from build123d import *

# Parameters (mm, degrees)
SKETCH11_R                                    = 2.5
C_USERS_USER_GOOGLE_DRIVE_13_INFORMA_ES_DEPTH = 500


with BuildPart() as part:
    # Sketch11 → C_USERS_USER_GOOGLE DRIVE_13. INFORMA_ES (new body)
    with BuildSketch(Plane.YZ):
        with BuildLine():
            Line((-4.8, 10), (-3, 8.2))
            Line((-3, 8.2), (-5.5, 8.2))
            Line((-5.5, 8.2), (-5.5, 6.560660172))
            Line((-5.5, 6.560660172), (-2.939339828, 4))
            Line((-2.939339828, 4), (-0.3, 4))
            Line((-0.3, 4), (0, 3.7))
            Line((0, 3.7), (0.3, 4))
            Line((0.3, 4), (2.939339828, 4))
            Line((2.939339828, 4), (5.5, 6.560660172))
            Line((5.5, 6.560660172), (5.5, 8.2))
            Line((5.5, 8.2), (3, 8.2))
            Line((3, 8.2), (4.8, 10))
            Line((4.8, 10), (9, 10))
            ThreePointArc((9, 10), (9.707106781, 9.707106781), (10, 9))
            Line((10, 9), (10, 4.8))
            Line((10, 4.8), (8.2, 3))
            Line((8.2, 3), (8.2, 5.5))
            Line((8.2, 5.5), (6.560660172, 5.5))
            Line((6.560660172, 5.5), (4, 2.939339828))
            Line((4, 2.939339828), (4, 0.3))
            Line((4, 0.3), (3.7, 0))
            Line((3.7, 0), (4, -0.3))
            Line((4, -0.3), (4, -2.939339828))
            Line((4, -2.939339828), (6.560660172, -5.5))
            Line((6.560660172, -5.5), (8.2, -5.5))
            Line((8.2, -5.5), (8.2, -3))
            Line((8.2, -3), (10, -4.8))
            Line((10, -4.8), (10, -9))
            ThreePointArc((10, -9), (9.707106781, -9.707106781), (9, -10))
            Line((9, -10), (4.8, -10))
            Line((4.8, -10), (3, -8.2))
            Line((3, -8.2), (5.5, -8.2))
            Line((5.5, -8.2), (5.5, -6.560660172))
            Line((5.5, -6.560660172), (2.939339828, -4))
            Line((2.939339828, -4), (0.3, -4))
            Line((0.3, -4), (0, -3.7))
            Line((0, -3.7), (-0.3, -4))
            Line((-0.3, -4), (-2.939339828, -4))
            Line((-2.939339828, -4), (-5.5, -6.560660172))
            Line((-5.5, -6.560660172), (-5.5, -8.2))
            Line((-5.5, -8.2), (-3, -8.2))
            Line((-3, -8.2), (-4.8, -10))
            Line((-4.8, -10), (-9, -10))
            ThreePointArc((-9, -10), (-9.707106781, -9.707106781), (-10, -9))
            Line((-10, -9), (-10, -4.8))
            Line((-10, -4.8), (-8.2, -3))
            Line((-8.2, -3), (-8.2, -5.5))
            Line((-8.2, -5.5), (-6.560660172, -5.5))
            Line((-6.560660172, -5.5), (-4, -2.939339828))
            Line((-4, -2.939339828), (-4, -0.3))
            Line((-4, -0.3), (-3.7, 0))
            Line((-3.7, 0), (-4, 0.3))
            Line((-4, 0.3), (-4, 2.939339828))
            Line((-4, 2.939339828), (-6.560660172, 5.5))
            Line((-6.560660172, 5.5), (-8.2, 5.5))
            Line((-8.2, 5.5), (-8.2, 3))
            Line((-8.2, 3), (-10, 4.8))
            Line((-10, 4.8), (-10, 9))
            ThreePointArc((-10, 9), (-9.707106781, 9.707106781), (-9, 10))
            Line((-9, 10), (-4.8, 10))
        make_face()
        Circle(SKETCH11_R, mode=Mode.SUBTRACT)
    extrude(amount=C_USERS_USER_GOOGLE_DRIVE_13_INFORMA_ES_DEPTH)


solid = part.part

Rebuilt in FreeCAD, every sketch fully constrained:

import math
import FreeCAD as App
import Part
import Sketcher

V = App.Vector

doc = App.newDocument("Part")
body = doc.addObject("PartDesign::Body", "Body")

# Sketch on YZ plane
sketch1 = body.newObject("Sketcher::SketchObject", "Sketch")
sketch1.AttachmentSupport = (doc.getObject("YZ_Plane"), [""])
sketch1.MapMode = "FlatFace"
sketch1.addGeometry([
    Part.LineSegment(V(-3, 8.2, 0), V(-4.8, 10, 0)),  # 0
    Part.LineSegment(V(-4.8, 10, 0), V(-9, 10, 0)),  # 1
    Part.ArcOfCircle(Part.Circle(V(-9, 9, 0), V(0, 0, 1), 1), math.radians(90), math.radians(180)),  # 2
    Part.LineSegment(V(-10, 9, 0), V(-10, 4.8, 0)),  # 3
    Part.LineSegment(V(-10, 4.8, 0), V(-8.2, 3, 0)),  # 4
    Part.LineSegment(V(-8.2, 3, 0), V(-8.2, 5.5, 0)),  # 5
    Part.LineSegment(V(-8.2, 5.5, 0), V(-6.56066, 5.5, 0)),  # 6
    Part.LineSegment(V(-6.56066, 5.5, 0), V(-4, 2.93934, 0)),  # 7
    Part.LineSegment(V(-4, 2.93934, 0), V(-4, 0.3, 0)),  # 8
    Part.LineSegment(V(-4, 0.3, 0), V(-3.7, 0, 0)),  # 9
    Part.LineSegment(V(-3.7, 0, 0), V(-4, -0.3, 0)),  # 10
    Part.LineSegment(V(-4, -0.3, 0), V(-4, -2.93934, 0)),  # 11
    Part.LineSegment(V(-4, -2.93934, 0), V(-6.56066, -5.5, 0)),  # 12
    Part.LineSegment(V(-6.56066, -5.5, 0), V(-8.2, -5.5, 0)),  # 13
    Part.LineSegment(V(-8.2, -5.5, 0), V(-8.2, -3, 0)),  # 14
    Part.LineSegment(V(-8.2, -3, 0), V(-10, -4.8, 0)),  # 15
    Part.LineSegment(V(-10, -4.8, 0), V(-10, -9, 0)),  # 16
    Part.ArcOfCircle(Part.Circle(V(-9, -9, 0), V(0, 0, 1), 1), math.radians(-180), math.radians(-90)),  # 17
    Part.LineSegment(V(-9, -10, 0), V(-4.8, -10, 0)),  # 18
    Part.LineSegment(V(-4.8, -10, 0), V(-3, -8.2, 0)),  # 19
    Part.LineSegment(V(-3, -8.2, 0), V(-5.5, -8.2, 0)),  # 20
    Part.LineSegment(V(-5.5, -8.2, 0), V(-5.5, -6.56066, 0)),  # 21
    Part.LineSegment(V(-5.5, -6.56066, 0), V(-2.93934, -4, 0)),  # 22
    Part.LineSegment(V(-2.93934, -4, 0), V(-0.3, -4, 0)),  # 23
    Part.LineSegment(V(-0.3, -4, 0), V(0, -3.7, 0)),  # 24
    Part.LineSegment(V(0, -3.7, 0), V(0.3, -4, 0)),  # 25
    Part.LineSegment(V(0.3, -4, 0), V(2.93934, -4, 0)),  # 26
    Part.LineSegment(V(2.93934, -4, 0), V(5.5, -6.56066, 0)),  # 27
    Part.LineSegment(V(5.5, -6.56066, 0), V(5.5, -8.2, 0)),  # 28
    Part.LineSegment(V(5.5, -8.2, 0), V(3, -8.2, 0)),  # 29
    Part.LineSegment(V(3, -8.2, 0), V(4.8, -10, 0)),  # 30
    Part.LineSegment(V(4.8, -10, 0), V(9, -10, 0)),  # 31
    Part.ArcOfCircle(Part.Circle(V(9, -9, 0), V(0, 0, 1), 1), math.radians(-90), math.radians(0)),  # 32
    Part.LineSegment(V(10, -9, 0), V(10, -4.8, 0)),  # 33
    Part.LineSegment(V(10, -4.8, 0), V(8.2, -3, 0)),  # 34
    Part.LineSegment(V(8.2, -3, 0), V(8.2, -5.5, 0)),  # 35
    Part.LineSegment(V(8.2, -5.5, 0), V(6.56066, -5.5, 0)),  # 36
    Part.LineSegment(V(6.56066, -5.5, 0), V(4, -2.93934, 0)),  # 37
    Part.LineSegment(V(4, -2.93934, 0), V(4, -0.3, 0)),  # 38
    Part.LineSegment(V(4, -0.3, 0), V(3.7, 0, 0)),  # 39
    Part.LineSegment(V(3.7, 0, 0), V(4, 0.3, 0)),  # 40
    Part.LineSegment(V(4, 0.3, 0), V(4, 2.93934, 0)),  # 41
    Part.LineSegment(V(4, 2.93934, 0), V(6.56066, 5.5, 0)),  # 42
    Part.LineSegment(V(6.56066, 5.5, 0), V(8.2, 5.5, 0)),  # 43
    Part.LineSegment(V(8.2, 5.5, 0), V(8.2, 3, 0)),  # 44
    Part.LineSegment(V(8.2, 3, 0), V(10, 4.8, 0)),  # 45
    Part.LineSegment(V(10, 4.8, 0), V(10, 9, 0)),  # 46
    Part.ArcOfCircle(Part.Circle(V(9, 9, 0), V(0, 0, 1), 1), math.radians(0), math.radians(90)),  # 47
    Part.LineSegment(V(9, 10, 0), V(4.8, 10, 0)),  # 48
    Part.LineSegment(V(4.8, 10, 0), V(3, 8.2, 0)),  # 49
    Part.LineSegment(V(3, 8.2, 0), V(5.5, 8.2, 0)),  # 50
    Part.LineSegment(V(5.5, 8.2, 0), V(5.5, 6.56066, 0)),  # 51
    Part.LineSegment(V(5.5, 6.56066, 0), V(2.93934, 4, 0)),  # 52
    Part.LineSegment(V(2.93934, 4, 0), V(0.3, 4, 0)),  # 53
    Part.LineSegment(V(0.3, 4, 0), V(0, 3.7, 0)),  # 54
    Part.LineSegment(V(0, 3.7, 0), V(-0.3, 4, 0)),  # 55
    Part.LineSegment(V(-0.3, 4, 0), V(-2.93934, 4, 0)),  # 56
    Part.LineSegment(V(-2.93934, 4, 0), V(-5.5, 6.56066, 0)),  # 57
    Part.LineSegment(V(-5.5, 6.56066, 0), V(-5.5, 8.2, 0)),  # 58
    Part.LineSegment(V(-5.5, 8.2, 0), V(-3, 8.2, 0)),  # 59
    Part.Circle(V(0, 0, 0), V(0, 0, 1), 2.5),  # 60
], False)
sketch1.addConstraint([
    Sketcher.Constraint("Coincident", 0, 2, 1, 1),
    Sketcher.Constraint("Tangent", 1, 2, 2, 1),
    Sketcher.Constraint("Tangent", 2, 2, 3, 1),
    Sketcher.Constraint("Coincident", 3, 2, 4, 1),
    Sketcher.Constraint("Coincident", 4, 2, 5, 1),
    Sketcher.Constraint("Coincident", 5, 2, 6, 1),
    Sketcher.Constraint("Coincident", 6, 2, 7, 1),
    Sketcher.Constraint("Coincident", 7, 2, 8, 1),
    Sketcher.Constraint("Coincident", 8, 2, 9, 1),
    Sketcher.Constraint("Coincident", 9, 2, 10, 1),
    Sketcher.Constraint("Coincident", 10, 2, 11, 1),
    Sketcher.Constraint("Coincident", 11, 2, 12, 1),
    Sketcher.Constraint("Coincident", 12, 2, 13, 1),
    Sketcher.Constraint("Coincident", 13, 2, 14, 1),
    Sketcher.Constraint("Coincident", 14, 2, 15, 1),
    Sketcher.Constraint("Coincident", 15, 2, 16, 1),
    Sketcher.Constraint("Tangent", 16, 2, 17, 1),
    Sketcher.Constraint("Tangent", 17, 2, 18, 1),
    Sketcher.Constraint("Coincident", 18, 2, 19, 1),
    Sketcher.Constraint("Coincident", 19, 2, 20, 1),
    Sketcher.Constraint("Coincident", 20, 2, 21, 1),
    Sketcher.Constraint("Coincident", 21, 2, 22, 1),
    Sketcher.Constraint("Coincident", 22, 2, 23, 1),
    Sketcher.Constraint("Coincident", 23, 2, 24, 1),
    Sketcher.Constraint("Coincident", 24, 2, 25, 1),
    Sketcher.Constraint("Coincident", 25, 2, 26, 1),
    Sketcher.Constraint("Coincident", 26, 2, 27, 1),
    Sketcher.Constraint("Coincident", 27, 2, 28, 1),
    Sketcher.Constraint("Coincident", 28, 2, 29, 1),
    Sketcher.Constraint("Coincident", 29, 2, 30, 1),
    Sketcher.Constraint("Coincident", 30, 2, 31, 1),
    Sketcher.Constraint("Tangent", 31, 2, 32, 1),
    Sketcher.Constraint("Tangent", 32, 2, 33, 1),
    Sketcher.Constraint("Coincident", 33, 2, 34, 1),
    Sketcher.Constraint("Coincident", 34, 2, 35, 1),
    Sketcher.Constraint("Coincident", 35, 2, 36, 1),
    Sketcher.Constraint("Coincident", 36, 2, 37, 1),
    Sketcher.Constraint("Coincident", 37, 2, 38, 1),
    Sketcher.Constraint("Coincident", 38, 2, 39, 1),
    Sketcher.Constraint("Coincident", 39, 2, 40, 1),
    Sketcher.Constraint("Coincident", 40, 2, 41, 1),
    Sketcher.Constraint("Coincident", 41, 2, 42, 1),
    Sketcher.Constraint("Coincident", 42, 2, 43, 1),
    Sketcher.Constraint("Coincident", 43, 2, 44, 1),
    Sketcher.Constraint("Coincident", 44, 2, 45, 1),
    Sketcher.Constraint("Coincident", 45, 2, 46, 1),
    Sketcher.Constraint("Tangent", 46, 2, 47, 1),
    Sketcher.Constraint("Tangent", 47, 2, 48, 1),
    Sketcher.Constraint("Coincident", 48, 2, 49, 1),
    Sketcher.Constraint("Coincident", 49, 2, 50, 1),
    Sketcher.Constraint("Coincident", 50, 2, 51, 1),
    Sketcher.Constraint("Coincident", 51, 2, 52, 1),
    Sketcher.Constraint("Coincident", 52, 2, 53, 1),
    Sketcher.Constraint("Coincident", 53, 2, 54, 1),
    Sketcher.Constraint("Coincident", 54, 2, 55, 1),
    Sketcher.Constraint("Coincident", 55, 2, 56, 1),
    Sketcher.Constraint("Coincident", 56, 2, 57, 1),
    Sketcher.Constraint("Coincident", 57, 2, 58, 1),
    Sketcher.Constraint("Coincident", 58, 2, 59, 1),
    Sketcher.Constraint("Coincident", 59, 2, 0, 1),
    Sketcher.Constraint("Horizontal", 1),
    Sketcher.Constraint("Vertical", 3),
    Sketcher.Constraint("Vertical", 5),
    Sketcher.Constraint("Horizontal", 6),
    Sketcher.Constraint("Vertical", 8),
    Sketcher.Constraint("Vertical", 11),
    Sketcher.Constraint("Horizontal", 13),
    Sketcher.Constraint("Vertical", 14),
    Sketcher.Constraint("Vertical", 16),
    Sketcher.Constraint("Horizontal", 18),
    Sketcher.Constraint("Horizontal", 20),
    Sketcher.Constraint("Vertical", 21),
    Sketcher.Constraint("Horizontal", 23),
    Sketcher.Constraint("Horizontal", 26),
    Sketcher.Constraint("Vertical", 28),
    Sketcher.Constraint("Horizontal", 29),
    Sketcher.Constraint("Horizontal", 31),
    Sketcher.Constraint("Vertical", 33),
    Sketcher.Constraint("Vertical", 35),
    Sketcher.Constraint("Horizontal", 36),
    Sketcher.Constraint("Vertical", 38),
    Sketcher.Constraint("Vertical", 41),
    Sketcher.Constraint("Horizontal", 43),
    Sketcher.Constraint("Vertical", 44),
    Sketcher.Constraint("Vertical", 46),
    Sketcher.Constraint("Horizontal", 48),
    Sketcher.Constraint("Horizontal", 50),
    Sketcher.Constraint("Vertical", 51),
    Sketcher.Constraint("Horizontal", 53),
    Sketcher.Constraint("Horizontal", 56),
    Sketcher.Constraint("Vertical", 58),
    Sketcher.Constraint("Horizontal", 59),
    Sketcher.Constraint("Coincident", 60, 3, -1, 1),
    Sketcher.Constraint("Equal", 2, 17),
    Sketcher.Constraint("Equal", 17, 32),
    Sketcher.Constraint("Equal", 32, 47),
    Sketcher.Constraint("Symmetric", 2, 3, 32, 3, -1, 1),
    Sketcher.Constraint("Symmetric", 17, 3, 47, 3, -1, 1),
    Sketcher.Constraint("Symmetric", 4, 2, 34, 2, -1, 1),
    Sketcher.Constraint("Symmetric", 6, 2, 36, 2, -1, 1),
    Sketcher.Constraint("Symmetric", 7, 2, 37, 2, -1, 1),
    Sketcher.Constraint("Symmetric", 9, 2, 39, 2, -1, 1),
    Sketcher.Constraint("Symmetric", 10, 2, 40, 2, -1, 1),
    Sketcher.Constraint("Symmetric", 12, 2, 42, 2, -1, 1),
    Sketcher.Constraint("Symmetric", 14, 2, 44, 2, -1, 1),
    Sketcher.Constraint("Symmetric", 19, 2, 49, 2, -1, 1),
    Sketcher.Constraint("Symmetric", 21, 2, 51, 2, -1, 1),
    Sketcher.Constraint("Symmetric", 22, 2, 52, 2, -1, 1),
    Sketcher.Constraint("Symmetric", 24, 2, 54, 2, -1, 1),
    Sketcher.Constraint("Symmetric", 25, 2, 55, 2, -1, 1),
    Sketcher.Constraint("Symmetric", 27, 2, 57, 2, -1, 1),
    Sketcher.Constraint("Symmetric", 29, 2, 59, 2, -1, 1),
    Sketcher.Constraint("Symmetric", 17, 3, 32, 3, -2),
    Sketcher.Constraint("Symmetric", 23, 2, 25, 2, -2),
    Sketcher.Constraint("Symmetric", 21, 2, 27, 2, -2),
    Sketcher.Constraint("Symmetric", 19, 2, 29, 2, -2),
    Sketcher.Constraint("Symmetric", 14, 2, 34, 2, -2),
    Sketcher.Constraint("Symmetric", 12, 2, 36, 2, -2),
    Sketcher.Constraint("Symmetric", 11, 2, 37, 2, -2),
    Sketcher.Constraint("PointOnObject", 9, 2, -1),
    Sketcher.Constraint("PointOnObject", 24, 2, -2),
    Sketcher.Constraint("Parallel", 0, 4),
    Sketcher.Constraint("Parallel", 4, 7),
    Sketcher.Constraint("Parallel", 7, 9),
    Sketcher.Constraint("Perpendicular", 9, 10),
    Sketcher.Constraint("Parallel", 10, 12),
    Sketcher.Constraint("Parallel", 12, 15),
    Sketcher.Constraint("Parallel", 15, 19),
    Sketcher.Constraint("Parallel", 19, 22),
    Sketcher.Constraint("Parallel", 22, 24),
    Sketcher.Constraint("Parallel", 25, 27),
    Sketcher.Constraint("Parallel", 27, 30),
    Sketcher.Constraint("Parallel", 30, 34),
    Sketcher.Constraint("Parallel", 37, 39),
    Sketcher.Constraint("Parallel", 40, 42),
    Sketcher.Constraint("Parallel", 42, 45),
    Sketcher.Constraint("Parallel", 45, 49),
    Sketcher.Constraint("Parallel", 52, 54),
    Sketcher.Constraint("Parallel", 55, 57),
    Sketcher.Constraint("Equal", 48, 3),
    Sketcher.Constraint("Equal", 59, 5),
    Sketcher.Constraint("Equal", 56, 8),
    Sketcher.Constraint("Equal", 43, 21),
    Sketcher.Constraint("Equal", 0, 4),
    Sketcher.Constraint("Equal", 12, 22),
    Sketcher.Constraint("Equal", 10, 24),
    Sketcher.Constraint("Diameter", 60, 5.0),
    Sketcher.Constraint("Radius", 2, 1.0),
    Sketcher.Constraint("DistanceX", 1, 2, 1, 1, 4.2),
    Sketcher.Constraint("DistanceX", 20, 2, 20, 1, 2.5),
    Sketcher.Constraint("DistanceX", 2, 3, -1, 1, 9.0),
    Sketcher.Constraint("DistanceY", -1, 1, 4, 2, 3.0),
    Sketcher.Constraint("DistanceX", 7, 2, -1, 1, 4.0),
    Sketcher.Constraint("DistanceY", -1, 1, 8, 2, 0.3),
    Sketcher.Constraint("DistanceX", 6, 1, 6, 2, 1.63934),
])
pad1 = body.newObject("PartDesign::Pad", "Pad")
pad1.Profile = sketch1
pad1.Length = 500

doc.recompute()
